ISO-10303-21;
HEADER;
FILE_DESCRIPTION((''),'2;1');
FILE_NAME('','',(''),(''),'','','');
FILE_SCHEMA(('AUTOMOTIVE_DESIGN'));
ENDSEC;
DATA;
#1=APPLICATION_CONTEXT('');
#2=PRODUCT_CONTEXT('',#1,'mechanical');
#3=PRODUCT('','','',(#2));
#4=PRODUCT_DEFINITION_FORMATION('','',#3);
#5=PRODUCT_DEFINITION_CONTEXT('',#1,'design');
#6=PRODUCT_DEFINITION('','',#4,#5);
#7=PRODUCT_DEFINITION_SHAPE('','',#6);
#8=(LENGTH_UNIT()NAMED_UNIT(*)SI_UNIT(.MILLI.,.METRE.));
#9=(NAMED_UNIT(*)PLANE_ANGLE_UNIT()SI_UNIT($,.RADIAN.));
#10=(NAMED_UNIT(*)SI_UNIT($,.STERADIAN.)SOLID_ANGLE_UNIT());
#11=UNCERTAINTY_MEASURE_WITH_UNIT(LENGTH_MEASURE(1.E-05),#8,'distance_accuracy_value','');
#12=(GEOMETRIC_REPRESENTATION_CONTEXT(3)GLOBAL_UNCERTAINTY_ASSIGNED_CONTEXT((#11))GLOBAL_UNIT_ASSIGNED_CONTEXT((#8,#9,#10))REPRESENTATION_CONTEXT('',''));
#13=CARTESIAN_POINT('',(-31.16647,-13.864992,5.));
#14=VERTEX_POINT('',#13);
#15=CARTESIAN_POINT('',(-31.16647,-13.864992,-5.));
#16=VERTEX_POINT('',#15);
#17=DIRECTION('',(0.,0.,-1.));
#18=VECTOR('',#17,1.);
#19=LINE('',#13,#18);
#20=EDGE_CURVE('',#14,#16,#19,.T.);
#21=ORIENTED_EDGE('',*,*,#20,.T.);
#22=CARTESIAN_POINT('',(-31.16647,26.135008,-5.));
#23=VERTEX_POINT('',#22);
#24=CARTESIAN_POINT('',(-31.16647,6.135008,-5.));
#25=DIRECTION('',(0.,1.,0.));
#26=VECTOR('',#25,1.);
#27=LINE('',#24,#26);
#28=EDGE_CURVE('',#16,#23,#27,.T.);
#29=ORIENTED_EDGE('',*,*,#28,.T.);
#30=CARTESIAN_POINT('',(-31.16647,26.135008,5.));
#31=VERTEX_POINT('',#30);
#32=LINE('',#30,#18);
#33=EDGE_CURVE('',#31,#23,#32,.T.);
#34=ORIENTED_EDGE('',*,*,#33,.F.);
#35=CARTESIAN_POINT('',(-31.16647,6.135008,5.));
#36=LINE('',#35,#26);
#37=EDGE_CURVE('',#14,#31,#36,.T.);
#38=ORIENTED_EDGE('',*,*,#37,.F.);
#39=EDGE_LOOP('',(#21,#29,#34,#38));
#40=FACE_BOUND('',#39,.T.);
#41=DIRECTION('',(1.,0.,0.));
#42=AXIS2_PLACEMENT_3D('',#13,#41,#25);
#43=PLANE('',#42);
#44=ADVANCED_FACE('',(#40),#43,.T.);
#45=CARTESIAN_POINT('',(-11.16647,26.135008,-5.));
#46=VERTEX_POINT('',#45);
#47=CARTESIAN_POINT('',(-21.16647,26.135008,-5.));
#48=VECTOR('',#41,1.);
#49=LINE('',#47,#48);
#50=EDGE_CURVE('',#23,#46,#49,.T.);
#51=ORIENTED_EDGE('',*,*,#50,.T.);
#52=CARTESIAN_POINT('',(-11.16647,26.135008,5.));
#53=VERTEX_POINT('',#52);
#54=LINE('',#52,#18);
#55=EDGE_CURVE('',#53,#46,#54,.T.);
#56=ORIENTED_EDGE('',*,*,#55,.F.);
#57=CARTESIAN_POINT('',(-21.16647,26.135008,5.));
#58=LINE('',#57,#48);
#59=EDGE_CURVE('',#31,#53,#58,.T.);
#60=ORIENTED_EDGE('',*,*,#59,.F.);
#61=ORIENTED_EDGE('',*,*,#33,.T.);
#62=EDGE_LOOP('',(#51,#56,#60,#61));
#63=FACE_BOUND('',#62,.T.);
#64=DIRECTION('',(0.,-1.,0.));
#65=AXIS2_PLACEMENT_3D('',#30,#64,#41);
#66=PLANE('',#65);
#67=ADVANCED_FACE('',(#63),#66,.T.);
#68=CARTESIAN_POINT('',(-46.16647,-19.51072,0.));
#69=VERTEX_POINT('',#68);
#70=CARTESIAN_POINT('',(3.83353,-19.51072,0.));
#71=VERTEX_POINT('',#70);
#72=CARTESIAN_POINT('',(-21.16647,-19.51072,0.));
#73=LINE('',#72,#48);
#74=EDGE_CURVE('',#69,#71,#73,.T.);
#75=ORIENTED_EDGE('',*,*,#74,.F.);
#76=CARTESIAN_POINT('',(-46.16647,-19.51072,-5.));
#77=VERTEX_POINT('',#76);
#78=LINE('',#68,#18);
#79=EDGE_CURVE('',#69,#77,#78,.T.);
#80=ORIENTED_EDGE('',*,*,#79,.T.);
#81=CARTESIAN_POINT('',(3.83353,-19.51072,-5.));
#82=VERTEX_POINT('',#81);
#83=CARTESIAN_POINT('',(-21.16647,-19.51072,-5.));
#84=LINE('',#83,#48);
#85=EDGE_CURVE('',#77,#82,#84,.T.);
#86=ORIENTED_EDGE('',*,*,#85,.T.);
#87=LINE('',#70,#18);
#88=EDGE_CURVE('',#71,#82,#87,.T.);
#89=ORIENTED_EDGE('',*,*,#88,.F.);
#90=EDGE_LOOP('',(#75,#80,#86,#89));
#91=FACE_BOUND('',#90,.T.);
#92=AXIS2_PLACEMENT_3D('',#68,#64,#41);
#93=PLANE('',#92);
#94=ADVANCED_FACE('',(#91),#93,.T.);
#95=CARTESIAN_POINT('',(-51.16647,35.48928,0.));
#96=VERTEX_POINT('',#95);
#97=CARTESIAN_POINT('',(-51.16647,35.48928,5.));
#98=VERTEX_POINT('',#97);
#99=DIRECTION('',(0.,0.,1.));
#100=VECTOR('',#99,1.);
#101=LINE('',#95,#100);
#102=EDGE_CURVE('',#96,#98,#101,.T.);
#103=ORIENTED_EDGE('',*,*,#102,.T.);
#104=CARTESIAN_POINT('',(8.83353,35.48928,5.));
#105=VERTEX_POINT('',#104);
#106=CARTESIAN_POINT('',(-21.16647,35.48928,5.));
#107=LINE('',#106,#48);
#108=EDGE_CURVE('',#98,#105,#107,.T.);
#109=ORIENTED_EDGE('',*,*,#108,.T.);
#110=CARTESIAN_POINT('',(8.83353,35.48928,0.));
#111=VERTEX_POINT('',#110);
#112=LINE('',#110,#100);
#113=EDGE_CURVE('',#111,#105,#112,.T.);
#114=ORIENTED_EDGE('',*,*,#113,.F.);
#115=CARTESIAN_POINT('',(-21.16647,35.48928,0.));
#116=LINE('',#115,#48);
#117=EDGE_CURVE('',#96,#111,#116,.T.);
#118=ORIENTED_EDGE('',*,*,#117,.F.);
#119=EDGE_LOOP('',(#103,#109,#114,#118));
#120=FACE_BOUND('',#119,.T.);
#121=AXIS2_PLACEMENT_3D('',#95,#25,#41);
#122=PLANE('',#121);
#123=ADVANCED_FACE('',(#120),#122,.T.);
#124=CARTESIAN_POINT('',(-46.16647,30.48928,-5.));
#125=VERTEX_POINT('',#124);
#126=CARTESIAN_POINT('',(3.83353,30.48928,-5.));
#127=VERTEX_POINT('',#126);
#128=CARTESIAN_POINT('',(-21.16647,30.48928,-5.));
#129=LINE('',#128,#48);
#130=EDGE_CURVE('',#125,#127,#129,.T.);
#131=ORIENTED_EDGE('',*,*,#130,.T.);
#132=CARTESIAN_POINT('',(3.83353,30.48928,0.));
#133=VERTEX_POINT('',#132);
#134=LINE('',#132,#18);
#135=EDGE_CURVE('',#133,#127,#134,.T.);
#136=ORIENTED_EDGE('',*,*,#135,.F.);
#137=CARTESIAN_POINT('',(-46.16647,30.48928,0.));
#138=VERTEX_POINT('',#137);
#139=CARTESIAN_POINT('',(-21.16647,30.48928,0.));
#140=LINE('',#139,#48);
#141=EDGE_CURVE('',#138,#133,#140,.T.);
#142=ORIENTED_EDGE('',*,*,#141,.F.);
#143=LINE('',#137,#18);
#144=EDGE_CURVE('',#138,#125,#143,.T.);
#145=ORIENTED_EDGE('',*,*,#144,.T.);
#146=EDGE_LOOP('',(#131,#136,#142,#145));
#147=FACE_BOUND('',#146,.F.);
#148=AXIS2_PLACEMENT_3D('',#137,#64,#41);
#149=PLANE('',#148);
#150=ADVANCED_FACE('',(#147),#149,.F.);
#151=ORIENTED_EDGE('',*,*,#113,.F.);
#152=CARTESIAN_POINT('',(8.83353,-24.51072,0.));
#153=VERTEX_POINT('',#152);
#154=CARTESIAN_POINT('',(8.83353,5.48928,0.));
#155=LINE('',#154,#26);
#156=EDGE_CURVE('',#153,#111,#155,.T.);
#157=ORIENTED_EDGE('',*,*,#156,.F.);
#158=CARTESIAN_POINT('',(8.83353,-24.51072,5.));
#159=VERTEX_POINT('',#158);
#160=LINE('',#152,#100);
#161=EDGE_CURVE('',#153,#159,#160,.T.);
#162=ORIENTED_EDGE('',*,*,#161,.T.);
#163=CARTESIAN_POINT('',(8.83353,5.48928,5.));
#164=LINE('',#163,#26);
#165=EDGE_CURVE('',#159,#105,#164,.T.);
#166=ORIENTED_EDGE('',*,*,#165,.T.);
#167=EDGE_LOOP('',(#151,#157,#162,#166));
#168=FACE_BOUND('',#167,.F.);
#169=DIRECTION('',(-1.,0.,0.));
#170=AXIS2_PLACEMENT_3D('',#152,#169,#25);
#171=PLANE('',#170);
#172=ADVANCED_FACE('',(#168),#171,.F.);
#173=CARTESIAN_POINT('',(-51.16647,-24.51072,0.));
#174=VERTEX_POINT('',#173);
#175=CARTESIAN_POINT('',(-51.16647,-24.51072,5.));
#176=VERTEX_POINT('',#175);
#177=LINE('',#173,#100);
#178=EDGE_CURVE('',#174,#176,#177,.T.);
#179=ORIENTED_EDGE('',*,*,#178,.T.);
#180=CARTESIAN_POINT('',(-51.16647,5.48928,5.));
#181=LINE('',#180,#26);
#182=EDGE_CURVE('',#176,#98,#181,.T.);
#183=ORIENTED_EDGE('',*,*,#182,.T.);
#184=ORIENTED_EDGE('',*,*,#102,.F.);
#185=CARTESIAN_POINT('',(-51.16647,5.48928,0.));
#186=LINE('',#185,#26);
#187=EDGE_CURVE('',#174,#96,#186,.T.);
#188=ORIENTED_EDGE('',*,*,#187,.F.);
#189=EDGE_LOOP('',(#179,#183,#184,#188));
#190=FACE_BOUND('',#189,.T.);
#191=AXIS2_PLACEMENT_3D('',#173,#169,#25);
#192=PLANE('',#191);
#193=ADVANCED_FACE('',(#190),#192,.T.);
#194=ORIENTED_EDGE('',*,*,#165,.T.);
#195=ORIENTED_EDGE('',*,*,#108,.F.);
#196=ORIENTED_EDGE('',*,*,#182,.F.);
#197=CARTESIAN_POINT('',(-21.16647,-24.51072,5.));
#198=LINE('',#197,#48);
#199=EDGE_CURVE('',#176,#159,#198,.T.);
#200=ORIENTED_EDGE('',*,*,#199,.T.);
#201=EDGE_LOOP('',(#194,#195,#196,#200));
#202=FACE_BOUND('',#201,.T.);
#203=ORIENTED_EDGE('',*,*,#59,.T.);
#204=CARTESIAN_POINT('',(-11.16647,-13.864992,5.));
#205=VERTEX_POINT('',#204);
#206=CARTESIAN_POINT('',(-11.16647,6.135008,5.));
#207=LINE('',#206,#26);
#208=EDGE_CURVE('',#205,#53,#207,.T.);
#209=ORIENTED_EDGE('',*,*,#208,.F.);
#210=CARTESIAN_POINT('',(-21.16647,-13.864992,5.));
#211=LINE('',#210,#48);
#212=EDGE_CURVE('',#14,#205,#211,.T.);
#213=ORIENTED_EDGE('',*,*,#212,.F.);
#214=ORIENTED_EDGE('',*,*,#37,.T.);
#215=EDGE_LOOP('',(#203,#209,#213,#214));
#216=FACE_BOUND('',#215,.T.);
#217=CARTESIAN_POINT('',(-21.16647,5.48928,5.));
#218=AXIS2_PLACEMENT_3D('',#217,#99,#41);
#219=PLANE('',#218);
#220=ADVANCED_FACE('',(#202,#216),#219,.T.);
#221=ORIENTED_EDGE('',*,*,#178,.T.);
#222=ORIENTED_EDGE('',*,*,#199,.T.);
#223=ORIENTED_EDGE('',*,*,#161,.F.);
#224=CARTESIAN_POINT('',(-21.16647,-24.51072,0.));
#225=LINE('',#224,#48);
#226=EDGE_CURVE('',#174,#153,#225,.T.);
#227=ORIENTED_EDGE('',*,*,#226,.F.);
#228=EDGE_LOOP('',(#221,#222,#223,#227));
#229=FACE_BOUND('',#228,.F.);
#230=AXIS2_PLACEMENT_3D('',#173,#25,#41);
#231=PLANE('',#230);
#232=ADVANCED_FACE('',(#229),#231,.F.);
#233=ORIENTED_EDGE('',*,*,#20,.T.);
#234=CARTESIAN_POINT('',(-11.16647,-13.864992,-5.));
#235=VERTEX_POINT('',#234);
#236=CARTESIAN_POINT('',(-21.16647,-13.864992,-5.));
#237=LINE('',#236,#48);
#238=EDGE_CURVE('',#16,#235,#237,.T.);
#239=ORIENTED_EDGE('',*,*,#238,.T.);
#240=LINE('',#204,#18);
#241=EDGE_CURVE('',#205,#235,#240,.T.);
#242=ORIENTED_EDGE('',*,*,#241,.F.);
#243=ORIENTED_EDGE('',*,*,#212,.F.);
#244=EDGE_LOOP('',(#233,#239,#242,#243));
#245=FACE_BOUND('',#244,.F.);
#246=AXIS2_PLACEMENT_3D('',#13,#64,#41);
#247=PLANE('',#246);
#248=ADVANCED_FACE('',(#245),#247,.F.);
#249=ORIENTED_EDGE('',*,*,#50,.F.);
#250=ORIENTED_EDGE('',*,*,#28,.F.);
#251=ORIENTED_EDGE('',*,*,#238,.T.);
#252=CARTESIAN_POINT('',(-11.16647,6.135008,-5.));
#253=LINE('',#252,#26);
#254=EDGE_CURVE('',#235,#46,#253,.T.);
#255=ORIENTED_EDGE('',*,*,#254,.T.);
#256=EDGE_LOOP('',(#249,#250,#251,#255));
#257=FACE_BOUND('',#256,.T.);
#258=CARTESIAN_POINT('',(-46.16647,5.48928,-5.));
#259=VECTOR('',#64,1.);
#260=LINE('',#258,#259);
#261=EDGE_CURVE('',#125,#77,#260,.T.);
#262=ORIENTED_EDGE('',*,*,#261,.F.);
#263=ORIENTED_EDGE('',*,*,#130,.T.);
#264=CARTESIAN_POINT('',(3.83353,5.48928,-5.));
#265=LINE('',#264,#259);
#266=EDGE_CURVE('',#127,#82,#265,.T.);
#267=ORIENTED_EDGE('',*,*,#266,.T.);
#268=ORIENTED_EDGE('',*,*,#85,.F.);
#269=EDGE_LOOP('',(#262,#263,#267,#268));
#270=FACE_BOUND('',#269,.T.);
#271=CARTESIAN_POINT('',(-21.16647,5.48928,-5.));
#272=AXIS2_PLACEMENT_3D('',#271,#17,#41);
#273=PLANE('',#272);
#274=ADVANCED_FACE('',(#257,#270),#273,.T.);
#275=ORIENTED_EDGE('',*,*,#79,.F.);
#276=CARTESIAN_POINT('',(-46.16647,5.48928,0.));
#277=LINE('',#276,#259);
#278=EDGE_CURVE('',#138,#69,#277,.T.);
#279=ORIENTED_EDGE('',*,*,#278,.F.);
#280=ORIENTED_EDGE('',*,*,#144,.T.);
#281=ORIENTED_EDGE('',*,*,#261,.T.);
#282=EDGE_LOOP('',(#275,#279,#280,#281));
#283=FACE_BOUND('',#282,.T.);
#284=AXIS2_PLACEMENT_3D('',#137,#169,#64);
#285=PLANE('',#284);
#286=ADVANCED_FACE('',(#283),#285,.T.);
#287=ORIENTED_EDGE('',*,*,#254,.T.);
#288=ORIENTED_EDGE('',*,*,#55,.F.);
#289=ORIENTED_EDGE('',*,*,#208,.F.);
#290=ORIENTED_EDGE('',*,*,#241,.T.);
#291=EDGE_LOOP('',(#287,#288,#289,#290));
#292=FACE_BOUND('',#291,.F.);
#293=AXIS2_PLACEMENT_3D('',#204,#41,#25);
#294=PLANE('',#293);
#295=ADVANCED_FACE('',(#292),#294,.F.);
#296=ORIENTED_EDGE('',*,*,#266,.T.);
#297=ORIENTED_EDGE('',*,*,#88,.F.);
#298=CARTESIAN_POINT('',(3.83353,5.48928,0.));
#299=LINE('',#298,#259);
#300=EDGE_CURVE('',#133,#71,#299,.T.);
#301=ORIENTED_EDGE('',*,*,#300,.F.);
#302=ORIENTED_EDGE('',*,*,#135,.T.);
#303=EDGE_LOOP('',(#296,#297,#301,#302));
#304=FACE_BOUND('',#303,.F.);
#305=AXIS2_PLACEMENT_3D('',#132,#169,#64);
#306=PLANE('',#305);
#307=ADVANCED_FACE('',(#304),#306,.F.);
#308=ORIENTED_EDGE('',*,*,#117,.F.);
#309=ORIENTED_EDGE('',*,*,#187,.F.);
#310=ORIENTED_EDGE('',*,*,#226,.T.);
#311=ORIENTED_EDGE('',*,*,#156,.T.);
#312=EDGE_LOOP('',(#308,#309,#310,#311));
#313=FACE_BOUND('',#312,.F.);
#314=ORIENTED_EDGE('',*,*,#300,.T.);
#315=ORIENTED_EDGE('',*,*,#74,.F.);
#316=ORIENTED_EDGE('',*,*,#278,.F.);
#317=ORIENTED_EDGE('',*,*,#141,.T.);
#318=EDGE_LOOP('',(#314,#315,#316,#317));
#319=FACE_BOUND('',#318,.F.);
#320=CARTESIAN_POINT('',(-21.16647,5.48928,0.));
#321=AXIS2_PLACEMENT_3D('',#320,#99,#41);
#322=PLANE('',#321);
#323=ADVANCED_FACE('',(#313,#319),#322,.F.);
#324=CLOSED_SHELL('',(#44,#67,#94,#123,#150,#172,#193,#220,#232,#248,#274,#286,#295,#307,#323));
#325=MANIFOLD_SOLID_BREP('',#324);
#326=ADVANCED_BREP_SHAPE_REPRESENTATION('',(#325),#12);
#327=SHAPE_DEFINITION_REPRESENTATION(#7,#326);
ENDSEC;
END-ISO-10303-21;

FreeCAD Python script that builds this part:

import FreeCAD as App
import Part
import Sketcher


def add_polygon(sketch, points):
    """Adds a closed chain of lines whose ends are joined by coincident constraints."""
    first, n = sketch.GeometryCount, len(points)
    for a, b in zip(points, points[1:] + points[:1]):
        sketch.addGeometry(Part.LineSegment(App.Vector(*a, 0), App.Vector(*b, 0)), False)
    for i in range(n):
        sketch.addConstraint(Sketcher.Constraint("Coincident", first + i, 2, first + (i + 1) % n, 1))

doc = App.newDocument("Part")
body = doc.addObject("PartDesign::Body", "Body")

# Sketch on XY plane
sketch1 = body.newObject("Sketcher::SketchObject", "Sketch")
sketch1.AttachmentSupport = (doc.getObject("XY_Plane"), [""])
sketch1.MapMode = "FlatFace"
add_polygon(sketch1, [(-51.16647, 35.48928), (-51.16647, -24.51072), (8.83353, -24.51072), (8.83353, 35.48928)])  # lines 0-3
sketch1.addConstraint([
    Sketcher.Constraint("Vertical", 0),
    Sketcher.Constraint("Horizontal", 1),
    Sketcher.Constraint("Vertical", 2),
    Sketcher.Constraint("Horizontal", 3),
    Sketcher.Constraint("Equal", 3, 0),
    Sketcher.Constraint("DistanceX", 1, 1, 1, 2, 60.0),
    Sketcher.Constraint("DistanceX", 0, 2, -1, 1, 51.16647),
    Sketcher.Constraint("DistanceY", 0, 2, -1, 1, 24.51072),
])
pad1 = body.newObject("PartDesign::Pad", "Pad")
pad1.Profile = sketch1
pad1.Length = 5

# Sketch on XY plane
sketch2 = body.newObject("Sketcher::SketchObject", "Sketch001")
sketch2.AttachmentSupport = (doc.getObject("XY_Plane"), [""])
sketch2.MapMode = "FlatFace"
add_polygon(sketch2, [(-46.16647, -19.51072), (-46.16647, 30.48928), (3.83353, 30.48928), (3.83353, -19.51072)])  # lines 0-3
sketch2.addConstraint([
    Sketcher.Constraint("Vertical", 0),
    Sketcher.Constraint("Horizontal", 1),
    Sketcher.Constraint("Vertical", 2),
    Sketcher.Constraint("Horizontal", 3),
    Sketcher.Constraint("Equal", 3, 0),
    Sketcher.Constraint("DistanceX", 1, 1, 1, 2, 50.0),
    Sketcher.Constraint("DistanceX", 0, 2, -1, 1, 46.16647),
    Sketcher.Constraint("DistanceY", -1, 1, 0, 2, 30.48928),
])
pad2 = body.newObject("PartDesign::Pad", "Pad001")
pad2.Profile = sketch2
pad2.Length = 5
pad2.Reversed = True

# Sketch on XY plane
sketch3 = body.newObject("Sketcher::SketchObject", "Sketch002")
sketch3.AttachmentSupport = (doc.getObject("XY_Plane"), [""])
sketch3.MapMode = "FlatFace"
sketch3.AttachmentOffset = App.Placement(App.Vector(0, 0, 5), App.Rotation())
add_polygon(sketch3, [(-31.16647, 26.135008), (-31.16647, -13.864992), (-11.16647, -13.864992), (-11.16647, 26.135008)])  # lines 0-3
sketch3.addConstraint([
    Sketcher.Constraint("Vertical", 0),
    Sketcher.Constraint("Horizontal", 1),
    Sketcher.Constraint("Vertical", 2),
    Sketcher.Constraint("Horizontal", 3),
    Sketcher.Constraint("DistanceX", 1, 1, 1, 2, 20.0),
    Sketcher.Constraint("DistanceY", 0, 2, 0, 1, 40.0),
    Sketcher.Constraint("DistanceX", 0, 2, -1, 1, 31.16647),
    Sketcher.Constraint("DistanceY", 0, 2, -1, 1, 13.864992),
])
pocket1 = body.newObject("PartDesign::Pocket", "Pocket")
pocket1.Profile = sketch3
pocket1.Length = 10

doc.recompute()
